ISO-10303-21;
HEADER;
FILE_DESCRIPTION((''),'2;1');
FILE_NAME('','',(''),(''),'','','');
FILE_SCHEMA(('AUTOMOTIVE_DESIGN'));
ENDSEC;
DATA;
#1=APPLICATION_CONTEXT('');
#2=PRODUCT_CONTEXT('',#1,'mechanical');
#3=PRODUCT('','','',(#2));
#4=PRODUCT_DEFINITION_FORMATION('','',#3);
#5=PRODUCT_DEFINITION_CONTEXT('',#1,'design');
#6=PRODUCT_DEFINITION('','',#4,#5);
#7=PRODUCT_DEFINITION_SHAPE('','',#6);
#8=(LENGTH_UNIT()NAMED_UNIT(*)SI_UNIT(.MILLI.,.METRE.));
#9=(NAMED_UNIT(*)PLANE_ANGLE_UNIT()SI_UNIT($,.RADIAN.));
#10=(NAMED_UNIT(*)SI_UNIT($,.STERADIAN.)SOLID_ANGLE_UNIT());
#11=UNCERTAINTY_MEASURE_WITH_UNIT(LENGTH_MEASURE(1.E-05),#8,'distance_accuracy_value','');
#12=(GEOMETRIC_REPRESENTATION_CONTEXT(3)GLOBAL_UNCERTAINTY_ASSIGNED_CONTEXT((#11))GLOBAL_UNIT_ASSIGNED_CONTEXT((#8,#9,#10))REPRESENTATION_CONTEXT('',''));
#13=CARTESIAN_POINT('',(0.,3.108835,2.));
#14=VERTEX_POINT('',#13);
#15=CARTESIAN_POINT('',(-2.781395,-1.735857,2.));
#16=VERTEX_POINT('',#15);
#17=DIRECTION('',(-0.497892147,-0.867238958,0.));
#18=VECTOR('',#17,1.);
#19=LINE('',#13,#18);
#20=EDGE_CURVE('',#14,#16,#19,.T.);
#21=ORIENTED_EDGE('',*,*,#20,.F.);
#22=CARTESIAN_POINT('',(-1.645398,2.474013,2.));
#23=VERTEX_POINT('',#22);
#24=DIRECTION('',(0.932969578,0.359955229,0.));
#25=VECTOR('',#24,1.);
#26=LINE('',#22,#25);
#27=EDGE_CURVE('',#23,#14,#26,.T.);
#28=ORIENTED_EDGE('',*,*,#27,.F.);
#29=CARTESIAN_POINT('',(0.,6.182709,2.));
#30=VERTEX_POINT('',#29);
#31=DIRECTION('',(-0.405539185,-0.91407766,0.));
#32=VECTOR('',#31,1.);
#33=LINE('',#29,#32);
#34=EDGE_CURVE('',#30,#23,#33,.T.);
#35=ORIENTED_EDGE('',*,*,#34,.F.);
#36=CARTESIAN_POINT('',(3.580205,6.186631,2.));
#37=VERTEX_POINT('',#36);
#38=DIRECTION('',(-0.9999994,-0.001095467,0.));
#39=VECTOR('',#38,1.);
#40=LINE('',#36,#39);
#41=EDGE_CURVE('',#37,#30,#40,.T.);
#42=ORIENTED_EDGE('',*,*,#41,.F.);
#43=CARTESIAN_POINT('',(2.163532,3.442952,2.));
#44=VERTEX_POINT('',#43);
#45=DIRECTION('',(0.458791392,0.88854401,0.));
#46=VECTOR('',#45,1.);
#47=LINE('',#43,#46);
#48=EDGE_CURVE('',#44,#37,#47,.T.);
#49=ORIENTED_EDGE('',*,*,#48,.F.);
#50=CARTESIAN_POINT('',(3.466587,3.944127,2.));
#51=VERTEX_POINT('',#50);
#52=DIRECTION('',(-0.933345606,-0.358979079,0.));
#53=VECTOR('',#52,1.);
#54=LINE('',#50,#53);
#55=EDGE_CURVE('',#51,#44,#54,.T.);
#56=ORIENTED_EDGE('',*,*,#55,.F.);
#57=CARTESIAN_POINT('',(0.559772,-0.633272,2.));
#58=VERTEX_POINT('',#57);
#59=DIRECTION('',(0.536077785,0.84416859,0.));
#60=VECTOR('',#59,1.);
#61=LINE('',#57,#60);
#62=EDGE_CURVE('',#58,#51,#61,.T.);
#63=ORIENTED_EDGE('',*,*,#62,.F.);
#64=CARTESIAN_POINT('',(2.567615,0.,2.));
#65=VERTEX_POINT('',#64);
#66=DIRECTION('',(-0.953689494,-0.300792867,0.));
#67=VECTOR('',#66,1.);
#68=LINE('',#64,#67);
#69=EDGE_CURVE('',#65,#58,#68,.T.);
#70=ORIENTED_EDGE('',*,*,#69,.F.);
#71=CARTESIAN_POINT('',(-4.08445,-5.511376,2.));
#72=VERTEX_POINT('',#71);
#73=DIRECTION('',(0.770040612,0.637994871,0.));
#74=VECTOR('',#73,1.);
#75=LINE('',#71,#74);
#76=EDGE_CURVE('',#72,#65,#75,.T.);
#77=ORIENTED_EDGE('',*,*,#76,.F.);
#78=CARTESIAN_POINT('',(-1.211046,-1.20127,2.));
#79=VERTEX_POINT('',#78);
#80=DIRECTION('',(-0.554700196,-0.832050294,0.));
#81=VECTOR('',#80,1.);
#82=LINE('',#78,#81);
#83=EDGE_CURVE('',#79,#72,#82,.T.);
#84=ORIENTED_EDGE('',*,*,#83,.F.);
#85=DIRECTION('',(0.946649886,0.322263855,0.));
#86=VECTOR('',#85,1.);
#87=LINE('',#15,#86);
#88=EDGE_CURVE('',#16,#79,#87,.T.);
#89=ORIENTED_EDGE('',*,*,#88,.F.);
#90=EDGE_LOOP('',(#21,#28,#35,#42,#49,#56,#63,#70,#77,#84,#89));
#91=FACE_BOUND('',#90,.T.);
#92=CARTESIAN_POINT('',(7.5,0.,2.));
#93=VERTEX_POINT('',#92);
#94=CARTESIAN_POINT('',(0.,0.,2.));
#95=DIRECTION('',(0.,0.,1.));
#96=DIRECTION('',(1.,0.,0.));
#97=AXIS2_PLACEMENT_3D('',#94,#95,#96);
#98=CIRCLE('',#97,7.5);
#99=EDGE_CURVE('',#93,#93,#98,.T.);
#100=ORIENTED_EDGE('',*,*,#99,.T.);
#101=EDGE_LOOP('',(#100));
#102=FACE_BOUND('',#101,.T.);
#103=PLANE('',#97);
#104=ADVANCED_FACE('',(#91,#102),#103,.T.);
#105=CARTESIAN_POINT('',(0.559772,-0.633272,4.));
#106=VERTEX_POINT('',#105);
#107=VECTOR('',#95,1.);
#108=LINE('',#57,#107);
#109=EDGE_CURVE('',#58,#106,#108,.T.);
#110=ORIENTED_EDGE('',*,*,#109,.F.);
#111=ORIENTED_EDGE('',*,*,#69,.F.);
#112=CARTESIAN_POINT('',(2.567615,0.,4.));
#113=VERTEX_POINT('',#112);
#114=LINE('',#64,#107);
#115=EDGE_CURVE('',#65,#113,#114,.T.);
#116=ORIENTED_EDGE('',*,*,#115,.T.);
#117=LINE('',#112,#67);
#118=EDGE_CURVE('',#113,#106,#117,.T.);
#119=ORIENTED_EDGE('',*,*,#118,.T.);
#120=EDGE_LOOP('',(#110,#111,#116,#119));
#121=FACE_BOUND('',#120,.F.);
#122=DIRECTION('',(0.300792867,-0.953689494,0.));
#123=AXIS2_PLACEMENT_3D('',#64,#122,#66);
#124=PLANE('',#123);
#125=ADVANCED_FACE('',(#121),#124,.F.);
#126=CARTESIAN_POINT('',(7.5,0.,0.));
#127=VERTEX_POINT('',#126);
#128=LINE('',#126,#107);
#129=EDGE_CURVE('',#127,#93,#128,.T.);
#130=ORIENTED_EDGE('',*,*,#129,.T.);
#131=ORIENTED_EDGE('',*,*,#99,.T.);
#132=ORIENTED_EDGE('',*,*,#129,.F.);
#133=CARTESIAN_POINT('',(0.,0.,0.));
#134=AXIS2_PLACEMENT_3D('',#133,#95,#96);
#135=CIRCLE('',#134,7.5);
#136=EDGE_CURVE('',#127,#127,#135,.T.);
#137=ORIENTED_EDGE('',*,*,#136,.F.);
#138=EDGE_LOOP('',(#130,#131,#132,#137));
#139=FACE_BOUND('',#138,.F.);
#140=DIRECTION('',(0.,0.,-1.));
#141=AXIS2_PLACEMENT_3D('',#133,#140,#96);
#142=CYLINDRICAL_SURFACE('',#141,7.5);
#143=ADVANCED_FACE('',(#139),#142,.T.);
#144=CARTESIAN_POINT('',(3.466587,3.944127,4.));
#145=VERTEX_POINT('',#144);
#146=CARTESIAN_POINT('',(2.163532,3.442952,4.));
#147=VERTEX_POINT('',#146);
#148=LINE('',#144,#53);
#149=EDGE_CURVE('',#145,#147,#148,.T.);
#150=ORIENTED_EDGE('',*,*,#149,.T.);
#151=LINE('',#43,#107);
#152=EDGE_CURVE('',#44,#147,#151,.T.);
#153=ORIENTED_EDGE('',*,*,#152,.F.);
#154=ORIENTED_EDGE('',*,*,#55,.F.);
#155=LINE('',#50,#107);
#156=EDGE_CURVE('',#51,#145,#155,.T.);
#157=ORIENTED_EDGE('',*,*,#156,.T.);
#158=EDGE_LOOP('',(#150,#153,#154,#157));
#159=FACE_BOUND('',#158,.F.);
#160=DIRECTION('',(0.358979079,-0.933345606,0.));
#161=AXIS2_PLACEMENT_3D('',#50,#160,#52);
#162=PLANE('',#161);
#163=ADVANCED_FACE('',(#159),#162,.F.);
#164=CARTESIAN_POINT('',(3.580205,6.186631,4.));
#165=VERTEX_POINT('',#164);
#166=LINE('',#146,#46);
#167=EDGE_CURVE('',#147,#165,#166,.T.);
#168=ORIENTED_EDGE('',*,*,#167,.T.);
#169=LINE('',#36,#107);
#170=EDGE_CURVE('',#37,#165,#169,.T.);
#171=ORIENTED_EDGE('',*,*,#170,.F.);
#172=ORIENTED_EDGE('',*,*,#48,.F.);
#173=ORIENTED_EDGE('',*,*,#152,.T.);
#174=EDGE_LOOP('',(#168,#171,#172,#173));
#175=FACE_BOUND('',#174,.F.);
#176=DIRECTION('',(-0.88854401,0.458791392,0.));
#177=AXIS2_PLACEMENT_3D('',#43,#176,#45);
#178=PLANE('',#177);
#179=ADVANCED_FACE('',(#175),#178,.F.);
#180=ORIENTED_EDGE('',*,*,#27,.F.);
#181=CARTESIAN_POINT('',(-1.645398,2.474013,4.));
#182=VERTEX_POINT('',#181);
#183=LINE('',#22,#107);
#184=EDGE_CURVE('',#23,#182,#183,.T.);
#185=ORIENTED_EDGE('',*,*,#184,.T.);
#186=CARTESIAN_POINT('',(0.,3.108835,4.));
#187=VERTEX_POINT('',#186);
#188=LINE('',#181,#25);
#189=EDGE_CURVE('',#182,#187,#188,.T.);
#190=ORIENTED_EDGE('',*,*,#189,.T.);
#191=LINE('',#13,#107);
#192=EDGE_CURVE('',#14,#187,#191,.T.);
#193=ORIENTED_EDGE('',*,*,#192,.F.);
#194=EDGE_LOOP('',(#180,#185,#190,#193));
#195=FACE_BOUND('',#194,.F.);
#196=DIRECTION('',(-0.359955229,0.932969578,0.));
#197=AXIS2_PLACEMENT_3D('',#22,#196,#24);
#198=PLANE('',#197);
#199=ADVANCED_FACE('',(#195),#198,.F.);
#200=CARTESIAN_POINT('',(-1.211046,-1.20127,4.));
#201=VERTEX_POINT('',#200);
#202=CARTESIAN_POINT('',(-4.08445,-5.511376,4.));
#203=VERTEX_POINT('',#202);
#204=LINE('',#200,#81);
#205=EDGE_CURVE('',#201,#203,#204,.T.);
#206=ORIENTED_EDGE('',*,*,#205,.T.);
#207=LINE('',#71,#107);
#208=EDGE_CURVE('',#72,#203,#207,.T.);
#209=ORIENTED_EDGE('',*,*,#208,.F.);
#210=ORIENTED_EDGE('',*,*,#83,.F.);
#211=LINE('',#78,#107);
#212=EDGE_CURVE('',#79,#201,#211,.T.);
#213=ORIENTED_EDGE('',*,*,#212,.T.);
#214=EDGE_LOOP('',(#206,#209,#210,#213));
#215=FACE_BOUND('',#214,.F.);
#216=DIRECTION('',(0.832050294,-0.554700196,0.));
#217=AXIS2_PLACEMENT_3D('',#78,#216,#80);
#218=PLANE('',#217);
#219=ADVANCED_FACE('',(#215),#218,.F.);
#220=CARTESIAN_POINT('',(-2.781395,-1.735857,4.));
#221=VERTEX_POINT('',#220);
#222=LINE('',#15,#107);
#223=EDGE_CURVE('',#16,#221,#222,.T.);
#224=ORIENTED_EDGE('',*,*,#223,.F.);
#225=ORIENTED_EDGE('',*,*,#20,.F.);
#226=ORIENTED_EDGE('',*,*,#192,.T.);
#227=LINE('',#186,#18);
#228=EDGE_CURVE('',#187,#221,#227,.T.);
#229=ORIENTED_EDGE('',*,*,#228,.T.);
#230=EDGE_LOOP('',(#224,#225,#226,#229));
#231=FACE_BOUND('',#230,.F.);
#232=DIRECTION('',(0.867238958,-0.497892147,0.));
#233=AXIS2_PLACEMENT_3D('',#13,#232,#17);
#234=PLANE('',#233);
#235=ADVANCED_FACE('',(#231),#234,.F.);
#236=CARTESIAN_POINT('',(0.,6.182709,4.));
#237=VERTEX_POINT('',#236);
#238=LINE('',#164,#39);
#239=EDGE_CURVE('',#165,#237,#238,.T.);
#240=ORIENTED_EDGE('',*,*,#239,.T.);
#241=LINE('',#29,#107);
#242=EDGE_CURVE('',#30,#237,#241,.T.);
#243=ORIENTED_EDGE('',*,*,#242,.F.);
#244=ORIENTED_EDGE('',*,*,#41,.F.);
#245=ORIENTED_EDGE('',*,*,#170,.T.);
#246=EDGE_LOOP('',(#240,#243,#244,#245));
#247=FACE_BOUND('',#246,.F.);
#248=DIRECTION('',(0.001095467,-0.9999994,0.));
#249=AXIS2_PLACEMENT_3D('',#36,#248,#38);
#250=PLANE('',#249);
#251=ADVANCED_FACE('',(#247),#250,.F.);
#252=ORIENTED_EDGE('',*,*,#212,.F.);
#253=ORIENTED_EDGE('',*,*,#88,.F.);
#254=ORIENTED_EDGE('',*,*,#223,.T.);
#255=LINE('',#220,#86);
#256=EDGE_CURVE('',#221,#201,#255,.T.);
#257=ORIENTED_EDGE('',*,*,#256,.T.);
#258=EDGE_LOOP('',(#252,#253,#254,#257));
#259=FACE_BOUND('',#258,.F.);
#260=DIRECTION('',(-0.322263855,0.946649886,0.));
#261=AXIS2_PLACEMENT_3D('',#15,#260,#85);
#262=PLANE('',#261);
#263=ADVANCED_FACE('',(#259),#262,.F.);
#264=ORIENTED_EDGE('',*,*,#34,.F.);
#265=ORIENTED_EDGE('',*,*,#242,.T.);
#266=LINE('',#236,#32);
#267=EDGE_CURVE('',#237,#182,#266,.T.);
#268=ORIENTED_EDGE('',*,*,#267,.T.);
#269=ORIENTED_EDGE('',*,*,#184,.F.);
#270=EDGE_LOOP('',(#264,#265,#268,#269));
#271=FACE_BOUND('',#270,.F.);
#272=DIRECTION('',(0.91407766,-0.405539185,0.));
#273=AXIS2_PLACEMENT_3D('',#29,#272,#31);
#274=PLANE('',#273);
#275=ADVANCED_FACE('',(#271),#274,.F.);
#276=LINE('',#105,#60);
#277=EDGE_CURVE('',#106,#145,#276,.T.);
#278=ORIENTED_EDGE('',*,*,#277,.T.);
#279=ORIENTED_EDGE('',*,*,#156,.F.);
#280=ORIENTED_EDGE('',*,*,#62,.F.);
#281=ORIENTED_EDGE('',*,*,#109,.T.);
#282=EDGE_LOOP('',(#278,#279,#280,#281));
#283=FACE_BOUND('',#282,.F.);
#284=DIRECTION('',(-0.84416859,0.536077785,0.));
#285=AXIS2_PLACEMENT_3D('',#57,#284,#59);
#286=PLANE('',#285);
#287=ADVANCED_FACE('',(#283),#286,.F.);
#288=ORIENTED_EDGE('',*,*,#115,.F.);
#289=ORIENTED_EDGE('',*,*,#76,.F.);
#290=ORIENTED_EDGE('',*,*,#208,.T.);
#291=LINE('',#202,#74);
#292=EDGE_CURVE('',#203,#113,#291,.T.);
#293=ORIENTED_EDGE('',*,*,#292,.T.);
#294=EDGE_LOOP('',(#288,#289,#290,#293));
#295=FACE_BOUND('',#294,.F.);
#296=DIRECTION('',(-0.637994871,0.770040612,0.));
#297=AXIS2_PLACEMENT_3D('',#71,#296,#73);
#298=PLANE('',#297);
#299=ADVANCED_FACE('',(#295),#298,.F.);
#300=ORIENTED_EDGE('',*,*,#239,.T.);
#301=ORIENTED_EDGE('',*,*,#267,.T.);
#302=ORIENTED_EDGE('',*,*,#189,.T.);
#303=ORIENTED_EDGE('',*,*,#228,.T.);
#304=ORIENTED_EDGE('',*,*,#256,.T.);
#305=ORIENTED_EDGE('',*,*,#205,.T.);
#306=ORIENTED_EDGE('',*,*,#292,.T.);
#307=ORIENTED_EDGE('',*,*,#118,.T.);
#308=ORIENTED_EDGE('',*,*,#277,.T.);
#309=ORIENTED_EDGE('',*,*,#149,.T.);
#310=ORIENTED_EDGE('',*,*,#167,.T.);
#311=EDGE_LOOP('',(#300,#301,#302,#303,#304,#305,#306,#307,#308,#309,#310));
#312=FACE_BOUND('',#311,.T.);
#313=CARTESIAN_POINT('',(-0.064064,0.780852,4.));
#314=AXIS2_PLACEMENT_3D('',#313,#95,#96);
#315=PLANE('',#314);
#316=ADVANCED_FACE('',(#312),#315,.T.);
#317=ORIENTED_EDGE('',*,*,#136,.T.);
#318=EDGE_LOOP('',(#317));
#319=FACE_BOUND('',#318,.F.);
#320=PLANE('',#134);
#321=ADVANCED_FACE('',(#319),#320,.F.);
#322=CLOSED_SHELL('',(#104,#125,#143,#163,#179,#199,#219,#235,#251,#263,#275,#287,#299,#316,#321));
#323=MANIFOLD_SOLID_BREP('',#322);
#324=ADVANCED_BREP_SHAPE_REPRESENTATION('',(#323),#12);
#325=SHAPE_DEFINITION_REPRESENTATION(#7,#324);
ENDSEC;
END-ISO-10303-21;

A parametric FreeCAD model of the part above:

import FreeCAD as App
import Part
import Sketcher
from FreeCAD import Vector
Q = App.Units.Quantity


def add_polygon(sketch, points):
    """Adds a closed chain of lines whose ends are joined by coincident constraints."""
    first, n = sketch.GeometryCount, len(points)
    for a, b in zip(points, points[1:] + points[:1]):
        sketch.addGeometry(Part.LineSegment(App.Vector(*a, 0), App.Vector(*b, 0)), False)
    for i in range(n):
        sketch.addConstraint(Sketcher.Constraint("Coincident", first + i, 2, first + (i + 1) % n, 1))

doc = App.newDocument("Part")
params = doc.addObject("Spreadsheet::Sheet", "Params")
for row, (alias, value) in enumerate([
    ("sketch1_diameter", "15 mm"),
    ("pad1_length", "2 mm"),
    ("pad2_length", "2 mm"),
], start=1):
    params.set(f"A{row}", alias)
    params.set(f"B{row}", "=" + value)
    params.setAlias(f"B{row}", alias)

body = doc.addObject("PartDesign::Body", "Body")

sketch1 = body.newObject("Sketcher::SketchObject", "Sketch")
sketch1.AttachmentSupport = (doc.getObject("XY_Plane"), [""])
sketch1.MapMode = "FlatFace"
sketch1.addGeometry(Part.Circle(Vector(0, 0, 0), Vector(0, 0, 1), 7.5), False)
sketch1.addConstraint(Sketcher.Constraint("Coincident", 0, 3, -1, 1))
sketch1.addConstraint(Sketcher.Constraint("Diameter", 0, Q("15 mm")))
sketch1.setExpression("Constraints[1]", "Params.sketch1_diameter")
pad1 = body.newObject("PartDesign::Pad", "Pad")
pad1.Profile = sketch1
pad1.setExpression("Length", "Params.pad1_length")

sketch2 = body.newObject("Sketcher::SketchObject", "Sketch001")
sketch2.AttachmentSupport = (doc.getObject("XY_Plane"), [""])
sketch2.MapMode = "FlatFace"
sketch2.AttachmentOffset = App.Placement(Vector(0, 0, 2), App.Rotation())
add_polygon(sketch2, [(3.580205, 6.186631), (0, 6.182709), (-1.645398, 2.474013), (0, 3.108835), (-2.781395, -1.735857), (-1.211046, -1.20127), (-4.08445, -5.511376), (2.567615, 0), (0.559772, -0.633272), (3.466587, 3.944127), (2.163532, 3.442952)])
sketch2.addConstraint(Sketcher.Constraint("PointOnObject", 0, 2, -2))
sketch2.addConstraint(Sketcher.Constraint("PointOnObject", 2, 2, -2))
sketch2.addConstraint(Sketcher.Constraint("PointOnObject", 6, 2, -1))
sketch2.addConstraint(Sketcher.Constraint("DistanceY", 4, 2, 7, 2, Q("0.567998 mm")))
sketch2.addConstraint(Sketcher.Constraint("DistanceY", 7, 2, 8, 2, Q("4.577399 mm")))
sketch2.addConstraint(Sketcher.Constraint("Distance", 1, Q("4.05731 mm")))
sketch2.addConstraint(Sketcher.Constraint("Distance", 3, Q("5.58634 mm")))
sketch2.addConstraint(Sketcher.Constraint("Distance", 4, Q("1.658849 mm")))
sketch2.addConstraint(Sketcher.Constraint("Distance", 6, Q("8.63859 mm")))
sketch2.addConstraint(Sketcher.Constraint("Distance", 9, Q("1.396112 mm")))
sketch2.addConstraint(Sketcher.Constraint("DistanceY", -1, 1, 0, 2, Q("6.182709 mm")))
sketch2.addConstraint(Sketcher.Constraint("DistanceY", 4, 2, -1, 1, Q("1.20127 mm")))
sketch2.addConstraint(Sketcher.Constraint("DistanceX", 5, 2, -1, 1, Q("4.08445 mm")))
sketch2.addConstraint(Sketcher.Constraint("DistanceX", -1, 1, 9, 2, Q("2.163532 mm")))
sketch2.addConstraint(Sketcher.Constraint("DistanceY", -1, 1, 9, 2, Q("3.442952 mm")))
sketch2.addConstraint(Sketcher.Constraint("DistanceY", -1, 1, 10, 2, Q("6.186631 mm")))
sketch2.addConstraint(Sketcher.Constraint("DistanceY", 3, 2, 1, 2, Q("4.20987 mm")))
sketch2.addConstraint(Sketcher.Constraint("DistanceX", 3, 2, 4, 2, Q("1.570349 mm")))
sketch2.addConstraint(Sketcher.Constraint("DistanceX", 1, 2, 4, 2, Q("0.434352 mm")))
sketch2.addConstraint(Sketcher.Constraint("DistanceY", 5, 2, 3, 2, Q("3.775519 mm")))
sketch2.addConstraint(Sketcher.Constraint("DistanceX", 4, 2, 7, 2, Q("1.770818 mm")))
sketch2.addConstraint(Sketcher.Constraint("DistanceX", 6, 2, 10, 2, Q("1.01259 mm")))
pad2 = body.newObject("PartDesign::Pad", "Pad001")
pad2.Profile = sketch2
pad2.setExpression("Length", "Params.pad2_length")

doc.recompute()
